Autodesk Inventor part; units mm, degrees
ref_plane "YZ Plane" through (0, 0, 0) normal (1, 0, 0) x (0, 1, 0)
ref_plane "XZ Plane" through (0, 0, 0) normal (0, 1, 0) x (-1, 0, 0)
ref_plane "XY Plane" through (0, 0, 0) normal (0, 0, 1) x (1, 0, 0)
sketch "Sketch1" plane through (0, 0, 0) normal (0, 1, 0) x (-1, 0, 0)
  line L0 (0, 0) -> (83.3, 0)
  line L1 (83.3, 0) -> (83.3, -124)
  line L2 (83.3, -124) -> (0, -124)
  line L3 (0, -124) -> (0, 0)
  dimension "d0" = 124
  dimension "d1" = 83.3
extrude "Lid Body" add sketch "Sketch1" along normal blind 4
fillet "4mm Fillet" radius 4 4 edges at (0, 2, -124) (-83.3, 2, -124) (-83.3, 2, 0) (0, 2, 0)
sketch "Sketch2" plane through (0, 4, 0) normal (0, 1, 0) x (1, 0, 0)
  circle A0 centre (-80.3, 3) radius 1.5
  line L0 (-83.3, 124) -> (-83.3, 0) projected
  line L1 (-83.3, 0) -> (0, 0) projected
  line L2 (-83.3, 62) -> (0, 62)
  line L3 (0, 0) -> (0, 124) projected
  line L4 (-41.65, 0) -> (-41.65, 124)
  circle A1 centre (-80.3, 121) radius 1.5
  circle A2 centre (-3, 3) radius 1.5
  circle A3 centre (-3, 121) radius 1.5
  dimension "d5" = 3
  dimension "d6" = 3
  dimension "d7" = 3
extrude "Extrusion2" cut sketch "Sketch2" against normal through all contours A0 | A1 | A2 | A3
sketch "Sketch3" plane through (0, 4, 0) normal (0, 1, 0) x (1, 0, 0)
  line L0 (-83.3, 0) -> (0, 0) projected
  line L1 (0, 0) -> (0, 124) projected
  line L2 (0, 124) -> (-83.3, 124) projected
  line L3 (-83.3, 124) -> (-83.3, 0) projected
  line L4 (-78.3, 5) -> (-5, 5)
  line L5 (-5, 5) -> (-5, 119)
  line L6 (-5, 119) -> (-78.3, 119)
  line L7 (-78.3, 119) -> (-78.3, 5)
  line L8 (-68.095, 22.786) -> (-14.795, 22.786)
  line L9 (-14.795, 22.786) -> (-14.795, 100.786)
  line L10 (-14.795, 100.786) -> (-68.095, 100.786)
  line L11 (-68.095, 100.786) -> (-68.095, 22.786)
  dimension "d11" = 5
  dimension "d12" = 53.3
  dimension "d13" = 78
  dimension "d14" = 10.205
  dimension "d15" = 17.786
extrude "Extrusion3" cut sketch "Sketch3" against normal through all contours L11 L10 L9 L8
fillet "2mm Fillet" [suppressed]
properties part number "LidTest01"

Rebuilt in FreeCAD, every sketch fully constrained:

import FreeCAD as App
import Part
import Sketcher

V = App.Vector


def edges_at(feature, points):
    """Names of the edges that pass closest to the given points."""
    edges = feature.Shape.Edges
    near = lambda p: min(range(len(edges)), key=lambda i: edges[i].distToShape(Part.Vertex(*p))[0])
    return sorted({f"Edge{near(p) + 1}" for p in points})

doc = App.newDocument("Part")
params = doc.addObject("Spreadsheet::Sheet", "Params")
for row, (alias, value) in enumerate([
    ("sketch1_height", "124 mm"),
    ("sketch1_width", "83.3 mm"),
    ("pad1_length", "4 mm"),
    ("fillet_radius", "4 mm"),
    ("sketch2_diameter", "3 mm"),
    ("sketch3_height", "78 mm"),
    ("sketch3_width", "53.3 mm"),
], start=1):
    params.set(f"A{row}", alias)
    params.set(f"B{row}", "=" + value)
    params.setAlias(f"B{row}", alias)

body = doc.addObject("PartDesign::Body", "Body")

# Sketch on XZ plane
sketch1 = body.newObject("Sketcher::SketchObject", "Sketch")
sketch1.AttachmentSupport = (doc.getObject("XZ_Plane"), [""])
sketch1.MapMode = "FlatFace"
sketch1.addGeometry(Part.LineSegment(V(-83.3, 0, 0), V(0, 0, 0)), False)
sketch1.addGeometry(Part.LineSegment(V(0, 0, 0), V(0, -124, 0)), False)
sketch1.addGeometry(Part.LineSegment(V(0, -124, 0), V(-83.3, -124, 0)), False)
sketch1.addGeometry(Part.LineSegment(V(-83.3, -124, 0), V(-83.3, 0, 0)), False)
sketch1.addConstraint(Sketcher.Constraint("Coincident", 0, 2, 1, 1))
sketch1.addConstraint(Sketcher.Constraint("Coincident", 1, 2, 2, 1))
sketch1.addConstraint(Sketcher.Constraint("Coincident", 2, 2, 3, 1))
sketch1.addConstraint(Sketcher.Constraint("Coincident", 3, 2, 0, 1))
sketch1.addConstraint(Sketcher.Constraint("Horizontal", 0))
sketch1.addConstraint(Sketcher.Constraint("Vertical", 1))
sketch1.addConstraint(Sketcher.Constraint("Horizontal", 2))
sketch1.addConstraint(Sketcher.Constraint("Vertical", 3))
sketch1.addConstraint(Sketcher.Constraint("Coincident", 0, 2, -1, 1))
sketch1.addConstraint(Sketcher.Constraint("DistanceY", 1, 2, 1, 1, 124.0))
sketch1.addConstraint(Sketcher.Constraint("DistanceX", 0, 1, 0, 2, 83.3))
sketch1.setExpression("Constraints[9]", "Params.sketch1_height")
sketch1.setExpression("Constraints[10]", "Params.sketch1_width")
pad1 = body.newObject("PartDesign::Pad", "Pad")
pad1.Profile = sketch1
pad1.setExpression("Length", "Params.pad1_length")
pad1.Reversed = True
doc.recompute()

fillet = body.newObject("PartDesign::Fillet", "Fillet")
fillet.Base = (pad1, edges_at(pad1, [
    (0, 2, -124),
    (-83.3, 2, -124),
    (-83.3, 2, 0),
    (0, 2, 0),
]))
fillet.setExpression("Radius", "Params.fillet_radius")

# Sketch on XZ plane
sketch2 = body.newObject("Sketcher::SketchObject", "Sketch001")
sketch2.AttachmentSupport = (doc.getObject("XZ_Plane"), [""])
sketch2.MapMode = "FlatFace"
sketch2.AttachmentOffset = App.Placement(V(0, 0, -4), App.Rotation())
sketch2.addGeometry(Part.Circle(V(-80.3, -3, 0), V(0, 0, 1), 1.5), False)
sketch2.addGeometry(Part.Circle(V(-80.3, -121, 0), V(0, 0, 1), 1.5), False)
sketch2.addGeometry(Part.Circle(V(-3, -3, 0), V(0, 0, 1), 1.5), False)
sketch2.addGeometry(Part.Circle(V(-3, -121, 0), V(0, 0, 1), 1.5), False)
sketch2.addConstraint(Sketcher.Constraint("Equal", 0, 1))
sketch2.addConstraint(Sketcher.Constraint("Equal", 1, 2))
sketch2.addConstraint(Sketcher.Constraint("Equal", 2, 3))
sketch2.addConstraint(Sketcher.Constraint("Horizontal", 0, 3, 2, 3))
sketch2.addConstraint(Sketcher.Constraint("Horizontal", 1, 3, 3, 3))
sketch2.addConstraint(Sketcher.Constraint("Vertical", 0, 3, 1, 3))
sketch2.addConstraint(Sketcher.Constraint("Vertical", 2, 3, 3, 3))
sketch2.addConstraint(Sketcher.Constraint("Diameter", 0, 3.0))
sketch2.addConstraint(Sketcher.Constraint("DistanceY", 0, 3, -1, 1, 3.0))
sketch2.addConstraint(Sketcher.Constraint("DistanceX", 2, 3, -1, 1, 3.0))
sketch2.addConstraint(Sketcher.Constraint("DistanceY", 1, 3, -1, 1, 121.0))
sketch2.addConstraint(Sketcher.Constraint("DistanceX", 0, 3, -1, 1, 80.3))
sketch2.setExpression("Constraints[7]", "Params.sketch2_diameter")
pocket1 = body.newObject("PartDesign::Pocket", "Pocket")
pocket1.Profile = sketch2
pocket1.Type = "ThroughAll"
pocket1.Reversed = True

# Sketch on XZ plane
sketch3 = body.newObject("Sketcher::SketchObject", "Sketch002")
sketch3.AttachmentSupport = (doc.getObject("XZ_Plane"), [""])
sketch3.MapMode = "FlatFace"
sketch3.AttachmentOffset = App.Placement(V(0, 0, -4), App.Rotation())
sketch3.addGeometry(Part.LineSegment(V(-68.095, -100.786, 0), V(-68.095, -22.786, 0)), False)
sketch3.addGeometry(Part.LineSegment(V(-68.095, -22.786, 0), V(-14.795, -22.786, 0)), False)
sketch3.addGeometry(Part.LineSegment(V(-14.795, -22.786, 0), V(-14.795, -100.786, 0)), False)
sketch3.addGeometry(Part.LineSegment(V(-14.795, -100.786, 0), V(-68.095, -100.786, 0)), False)
sketch3.addConstraint(Sketcher.Constraint("Coincident", 0, 2, 1, 1))
sketch3.addConstraint(Sketcher.Constraint("Coincident", 1, 2, 2, 1))
sketch3.addConstraint(Sketcher.Constraint("Coincident", 2, 2, 3, 1))
sketch3.addConstraint(Sketcher.Constraint("Coincident", 3, 2, 0, 1))
sketch3.addConstraint(Sketcher.Constraint("Vertical", 0))
sketch3.addConstraint(Sketcher.Constraint("Horizontal", 1))
sketch3.addConstraint(Sketcher.Constraint("Vertical", 2))
sketch3.addConstraint(Sketcher.Constraint("Horizontal", 3))
sketch3.addConstraint(Sketcher.Constraint("DistanceY", 0, 1, 0, 2, 78.0))
sketch3.addConstraint(Sketcher.Constraint("DistanceX", 1, 1, 1, 2, 53.3))
sketch3.addConstraint(Sketcher.Constraint("DistanceX", 0, 2, -1, 1, 68.095))
sketch3.addConstraint(Sketcher.Constraint("DistanceY", 0, 2, -1, 1, 22.786))
sketch3.setExpression("Constraints[8]", "Params.sketch3_height")
sketch3.setExpression("Constraints[9]", "Params.sketch3_width")
pocket2 = body.newObject("PartDesign::Pocket", "Pocket001")
pocket2.Profile = sketch3
pocket2.Type = "ThroughAll"
pocket2.Reversed = True

doc.recompute()
